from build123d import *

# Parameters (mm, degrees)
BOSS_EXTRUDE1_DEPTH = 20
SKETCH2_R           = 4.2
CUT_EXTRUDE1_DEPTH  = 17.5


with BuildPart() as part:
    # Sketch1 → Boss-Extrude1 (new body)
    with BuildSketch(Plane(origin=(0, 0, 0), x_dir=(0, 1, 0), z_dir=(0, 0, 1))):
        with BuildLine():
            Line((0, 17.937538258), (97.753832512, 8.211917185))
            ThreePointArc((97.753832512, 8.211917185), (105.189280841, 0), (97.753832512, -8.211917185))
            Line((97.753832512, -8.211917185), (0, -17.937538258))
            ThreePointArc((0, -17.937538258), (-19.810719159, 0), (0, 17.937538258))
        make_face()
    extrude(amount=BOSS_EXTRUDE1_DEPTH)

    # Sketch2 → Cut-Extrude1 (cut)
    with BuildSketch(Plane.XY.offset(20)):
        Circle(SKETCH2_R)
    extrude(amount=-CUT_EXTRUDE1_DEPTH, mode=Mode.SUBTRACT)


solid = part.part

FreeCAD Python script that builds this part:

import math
import FreeCAD as App
import Part
import Sketcher

V = App.Vector
Q = App.Units.Quantity

doc = App.newDocument("Part")
body = doc.addObject("PartDesign::Body", "Body")

# Sketch on XY plane
sketch1 = body.newObject("Sketcher::SketchObject", "Sketch")
sketch1.AttachmentSupport = (doc.getObject("XY_Plane"), [""])
sketch1.MapMode = "FlatFace"
sketch1.addGeometry([
    Part.LineSegment(V(-8, 98, 0), V(-18, 0, 0)),
    Part.ArcOfCircle(Part.Circle(V(0, -2, 0), V(0, 0, 1), 18), math.radians(174), math.radians(366)),
    Part.LineSegment(V(18, 0, 0), V(8, 98, 0)),
    Part.ArcOfCircle(Part.Circle(V(0, 97, 0), V(0, 0, 1), 8), math.radians(6), math.radians(174)),
], False)
sketch1.addConstraint([
    Sketcher.Constraint("Tangent", 0, 2, 1, 1),
    Sketcher.Constraint("Tangent", 1, 2, 2, 1),
    Sketcher.Constraint("Tangent", 2, 2, 3, 1),
    Sketcher.Constraint("Tangent", 3, 2, 0, 1),
    Sketcher.Constraint("Symmetric", 0, 2, 1, 2, -1, 1),
    Sketcher.Constraint("PointOnObject", 1, 3, -2),
    Sketcher.Constraint("Radius", 3, Q("8.25246 mm")),
    Sketcher.Constraint("Radius", 1, Q("18.026097 mm")),
    Sketcher.Constraint("DistanceY", -1, 1, 3, 3, Q("96.936821 mm")),
])
pad1 = body.newObject("PartDesign::Pad", "Pad")
pad1.Profile = sketch1
pad1.Length = 20

# Sketch on XY plane
sketch2 = body.newObject("Sketcher::SketchObject", "Sketch001")
sketch2.AttachmentSupport = (doc.getObject("XY_Plane"), [""])
sketch2.MapMode = "FlatFace"
sketch2.AttachmentOffset = App.Placement(V(0, 0, 20), App.Rotation())
sketch2.addGeometry(Part.Circle(V(0, 0, 0), V(0, 0, 1), 4.2), False)
sketch2.addConstraint([
    Sketcher.Constraint("Coincident", 0, 3, -1, 1),
    Sketcher.Constraint("Diameter", 0, Q("8.4 mm")),
])
pocket1 = body.newObject("PartDesign::Pocket", "Pocket")
pocket1.Profile = sketch2
pocket1.Length = 17.5

doc.recompute()
